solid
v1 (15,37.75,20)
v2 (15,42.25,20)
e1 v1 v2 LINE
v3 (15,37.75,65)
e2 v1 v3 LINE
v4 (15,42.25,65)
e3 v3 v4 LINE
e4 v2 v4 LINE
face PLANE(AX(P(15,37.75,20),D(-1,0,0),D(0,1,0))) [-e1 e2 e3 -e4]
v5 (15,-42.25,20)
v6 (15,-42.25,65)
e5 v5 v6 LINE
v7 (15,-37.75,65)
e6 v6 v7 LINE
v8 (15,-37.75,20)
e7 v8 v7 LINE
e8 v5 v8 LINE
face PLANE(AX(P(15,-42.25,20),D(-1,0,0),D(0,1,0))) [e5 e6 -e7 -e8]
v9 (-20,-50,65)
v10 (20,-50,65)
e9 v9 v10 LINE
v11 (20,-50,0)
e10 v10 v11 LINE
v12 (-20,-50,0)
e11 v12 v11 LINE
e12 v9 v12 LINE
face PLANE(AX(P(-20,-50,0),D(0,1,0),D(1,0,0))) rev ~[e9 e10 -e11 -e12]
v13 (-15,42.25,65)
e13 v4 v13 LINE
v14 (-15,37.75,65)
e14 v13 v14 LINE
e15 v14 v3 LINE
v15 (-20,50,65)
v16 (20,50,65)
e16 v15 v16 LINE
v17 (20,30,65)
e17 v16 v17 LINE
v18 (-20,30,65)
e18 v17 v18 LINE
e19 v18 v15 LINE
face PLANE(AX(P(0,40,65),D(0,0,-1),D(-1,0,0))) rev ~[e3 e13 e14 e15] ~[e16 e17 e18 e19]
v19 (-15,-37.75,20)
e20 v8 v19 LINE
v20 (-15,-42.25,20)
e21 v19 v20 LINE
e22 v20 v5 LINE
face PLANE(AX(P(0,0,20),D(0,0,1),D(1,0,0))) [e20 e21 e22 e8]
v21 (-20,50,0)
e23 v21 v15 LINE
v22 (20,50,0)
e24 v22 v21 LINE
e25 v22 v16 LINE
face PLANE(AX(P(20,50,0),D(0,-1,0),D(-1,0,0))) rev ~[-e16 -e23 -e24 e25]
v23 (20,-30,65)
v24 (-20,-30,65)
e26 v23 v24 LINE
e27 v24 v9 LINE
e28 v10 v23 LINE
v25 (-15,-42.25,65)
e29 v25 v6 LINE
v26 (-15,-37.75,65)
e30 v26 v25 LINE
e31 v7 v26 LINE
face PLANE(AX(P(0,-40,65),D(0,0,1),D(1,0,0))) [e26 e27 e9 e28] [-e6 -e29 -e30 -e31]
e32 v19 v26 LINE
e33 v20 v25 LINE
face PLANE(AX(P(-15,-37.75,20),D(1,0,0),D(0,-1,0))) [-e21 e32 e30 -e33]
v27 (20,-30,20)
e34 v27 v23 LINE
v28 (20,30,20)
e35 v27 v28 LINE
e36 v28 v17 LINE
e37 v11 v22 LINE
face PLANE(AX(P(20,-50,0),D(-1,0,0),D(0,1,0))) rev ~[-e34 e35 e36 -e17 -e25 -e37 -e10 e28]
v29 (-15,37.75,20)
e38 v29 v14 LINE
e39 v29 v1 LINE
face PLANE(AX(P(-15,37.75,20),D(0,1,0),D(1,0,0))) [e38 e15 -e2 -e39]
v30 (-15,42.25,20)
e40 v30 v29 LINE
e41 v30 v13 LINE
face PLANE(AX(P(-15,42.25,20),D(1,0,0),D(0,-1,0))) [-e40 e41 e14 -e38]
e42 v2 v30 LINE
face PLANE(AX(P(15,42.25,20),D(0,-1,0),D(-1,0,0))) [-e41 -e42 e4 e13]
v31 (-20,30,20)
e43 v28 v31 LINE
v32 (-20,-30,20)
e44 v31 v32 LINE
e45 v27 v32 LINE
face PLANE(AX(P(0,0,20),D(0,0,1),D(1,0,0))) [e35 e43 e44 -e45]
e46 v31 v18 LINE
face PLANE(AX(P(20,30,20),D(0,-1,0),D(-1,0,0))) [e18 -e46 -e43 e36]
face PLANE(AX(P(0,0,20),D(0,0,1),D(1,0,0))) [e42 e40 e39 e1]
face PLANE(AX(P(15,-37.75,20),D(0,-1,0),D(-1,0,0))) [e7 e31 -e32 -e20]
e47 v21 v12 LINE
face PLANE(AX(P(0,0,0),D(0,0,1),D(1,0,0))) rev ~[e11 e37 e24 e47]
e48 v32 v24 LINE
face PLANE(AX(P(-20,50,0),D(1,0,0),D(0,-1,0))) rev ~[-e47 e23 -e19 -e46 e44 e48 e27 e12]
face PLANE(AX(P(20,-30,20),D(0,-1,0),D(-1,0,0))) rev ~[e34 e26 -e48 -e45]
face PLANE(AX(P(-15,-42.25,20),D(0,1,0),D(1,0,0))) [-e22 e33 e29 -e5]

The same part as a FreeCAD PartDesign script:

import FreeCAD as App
import Part
import Sketcher
from FreeCAD import Vector
Q = App.Units.Quantity

doc = App.newDocument("Part")
body = doc.addObject("PartDesign::Body", "Body")

sketch1 = doc.addObject("Sketcher::SketchObject", "Sketch")
body.addObject(sketch1)
sketch1.AttachmentSupport = (doc.XY_Plane, [""])
sketch1.MapMode = "FlatFace"
sketch1.addGeometry([
    Part.LineSegment(Vector(-20, -50, 0), Vector(20, -50, 0)),
    Part.LineSegment(Vector(20, -50, 0), Vector(20, 50, 0)),
    Part.LineSegment(Vector(20, 50, 0), Vector(-20, 50, 0)),
    Part.LineSegment(Vector(-20, 50, 0), Vector(-20, -50, 0)),
], False)
sketch1.addConstraint([
    Sketcher.Constraint("Coincident", 0, 2, 1, 1),
    Sketcher.Constraint("Coincident", 1, 2, 2, 1),
    Sketcher.Constraint("Coincident", 2, 2, 3, 1),
    Sketcher.Constraint("Coincident", 3, 2, 0, 1),
    Sketcher.Constraint("Horizontal", 0),
    Sketcher.Constraint("Vertical", 1),
    Sketcher.Constraint("Horizontal", 2),
    Sketcher.Constraint("Vertical", 3),
    Sketcher.Constraint("Symmetric", 0, 2, 2, 2, -1, 1),
    Sketcher.Constraint("DistanceX", 0, 1, 0, 2, Q("40 mm")),
    Sketcher.Constraint("DistanceY", 1, 1, 1, 2, Q("100 mm")),
])
pad1 = doc.addObject("PartDesign::Pad", "Pad")
body.addObject(pad1)
pad1.Profile = sketch1
pad1.Length = 20

sketch2 = doc.addObject("Sketcher::SketchObject", "Sketch001")
body.addObject(sketch2)
sketch2.AttachmentSupport = (doc.XY_Plane, [""])
sketch2.MapMode = "FlatFace"
sketch2.AttachmentOffset = App.Placement(Vector(0, 0, 20), App.Rotation())
sketch2.addGeometry([
    Part.LineSegment(Vector(-20, 30, 0), Vector(20, 30, 0)),
    Part.LineSegment(Vector(20, 30, 0), Vector(20, 50, 0)),
    Part.LineSegment(Vector(20, 50, 0), Vector(-20, 50, 0)),
    Part.LineSegment(Vector(-20, 50, 0), Vector(-20, 30, 0)),
    Part.LineSegment(Vector(-15, 37.8, 0), Vector(-15, 42.2, 0)),
    Part.LineSegment(Vector(-15, 42.2, 0), Vector(15, 42.2, 0)),
    Part.LineSegment(Vector(15, 42.2, 0), Vector(15, 37.8, 0)),
    Part.LineSegment(Vector(15, 37.8, 0), Vector(-15, 37.8, 0)),
    Part.LineSegment(Vector(-20, -50, 0), Vector(20, -50, 0)),
    Part.LineSegment(Vector(20, -50, 0), Vector(20, -30, 0)),
    Part.LineSegment(Vector(20, -30, 0), Vector(-20, -30, 0)),
    Part.LineSegment(Vector(-20, -30, 0), Vector(-20, -50, 0)),
    Part.LineSegment(Vector(-15, -37.8, 0), Vector(15, -37.8, 0)),
    Part.LineSegment(Vector(15, -37.8, 0), Vector(15, -42.2, 0)),
    Part.LineSegment(Vector(15, -42.2, 0), Vector(-15, -42.2, 0)),
    Part.LineSegment(Vector(-15, -42.2, 0), Vector(-15, -37.8, 0)),
], False)
sketch2.addConstraint([
    Sketcher.Constraint("Coincident", 0, 2, 1, 1),
    Sketcher.Constraint("Coincident", 1, 2, 2, 1),
    Sketcher.Constraint("Coincident", 2, 2, 3, 1),
    Sketcher.Constraint("Coincident", 3, 2, 0, 1),
    Sketcher.Constraint("Coincident", 4, 2, 5, 1),
    Sketcher.Constraint("Coincident", 5, 2, 6, 1),
    Sketcher.Constraint("Coincident", 6, 2, 7, 1),
    Sketcher.Constraint("Coincident", 7, 2, 4, 1),
    Sketcher.Constraint("Coincident", 8, 2, 9, 1),
    Sketcher.Constraint("Coincident", 9, 2, 10, 1),
    Sketcher.Constraint("Coincident", 10, 2, 11, 1),
    Sketcher.Constraint("Coincident", 11, 2, 8, 1),
    Sketcher.Constraint("Coincident", 12, 2, 13, 1),
    Sketcher.Constraint("Coincident", 13, 2, 14, 1),
    Sketcher.Constraint("Coincident", 14, 2, 15, 1),
    Sketcher.Constraint("Coincident", 15, 2, 12, 1),
    Sketcher.Constraint("Horizontal", 0),
    Sketcher.Constraint("Vertical", 1),
    Sketcher.Constraint("Horizontal", 2),
    Sketcher.Constraint("Vertical", 3),
    Sketcher.Constraint("Vertical", 4),
    Sketcher.Constraint("Horizontal", 5),
    Sketcher.Constraint("Vertical", 6),
    Sketcher.Constraint("Horizontal", 7),
    Sketcher.Constraint("Horizontal", 8),
    Sketcher.Constraint("Vertical", 9),
    Sketcher.Constraint("Horizontal", 10),
    Sketcher.Constraint("Vertical", 11),
    Sketcher.Constraint("Horizontal", 12),
    Sketcher.Constraint("Vertical", 13),
    Sketcher.Constraint("Horizontal", 14),
    Sketcher.Constraint("Vertical", 15),
    Sketcher.Constraint("Symmetric", 2, 2, 8, 2, -1, 1),
    Sketcher.Constraint("Symmetric", 0, 2, 10, 2, -1, 1),
    Sketcher.Constraint("Symmetric", 7, 2, 12, 2, -1, 1),
    Sketcher.Constraint("Symmetric", 5, 2, 14, 2, -1, 1),
    Sketcher.Constraint("Vertical", 1, 2, 8, 2),
    Sketcher.Constraint("Vertical", 6, 2, 12, 2),
    Sketcher.Constraint("DistanceX", 0, 1, 0, 2, Q("40 mm")),
    Sketcher.Constraint("DistanceX", 5, 1, 5, 2, Q("30 mm")),
    Sketcher.Constraint("DistanceY", 1, 1, 1, 2, Q("20 mm")),
    Sketcher.Constraint("DistanceY", 4, 1, 4, 2, Q("4.5 mm")),
    Sketcher.Constraint("DistanceY", -1, 1, 0, 2, Q("30 mm")),
    Sketcher.Constraint("DistanceY", -1, 1, 4, 2, Q("42.25 mm")),
])
pad2 = doc.addObject("PartDesign::Pad", "Pad001")
body.addObject(pad2)
pad2.Profile = sketch2
pad2.Length = 45

doc.recompute()
